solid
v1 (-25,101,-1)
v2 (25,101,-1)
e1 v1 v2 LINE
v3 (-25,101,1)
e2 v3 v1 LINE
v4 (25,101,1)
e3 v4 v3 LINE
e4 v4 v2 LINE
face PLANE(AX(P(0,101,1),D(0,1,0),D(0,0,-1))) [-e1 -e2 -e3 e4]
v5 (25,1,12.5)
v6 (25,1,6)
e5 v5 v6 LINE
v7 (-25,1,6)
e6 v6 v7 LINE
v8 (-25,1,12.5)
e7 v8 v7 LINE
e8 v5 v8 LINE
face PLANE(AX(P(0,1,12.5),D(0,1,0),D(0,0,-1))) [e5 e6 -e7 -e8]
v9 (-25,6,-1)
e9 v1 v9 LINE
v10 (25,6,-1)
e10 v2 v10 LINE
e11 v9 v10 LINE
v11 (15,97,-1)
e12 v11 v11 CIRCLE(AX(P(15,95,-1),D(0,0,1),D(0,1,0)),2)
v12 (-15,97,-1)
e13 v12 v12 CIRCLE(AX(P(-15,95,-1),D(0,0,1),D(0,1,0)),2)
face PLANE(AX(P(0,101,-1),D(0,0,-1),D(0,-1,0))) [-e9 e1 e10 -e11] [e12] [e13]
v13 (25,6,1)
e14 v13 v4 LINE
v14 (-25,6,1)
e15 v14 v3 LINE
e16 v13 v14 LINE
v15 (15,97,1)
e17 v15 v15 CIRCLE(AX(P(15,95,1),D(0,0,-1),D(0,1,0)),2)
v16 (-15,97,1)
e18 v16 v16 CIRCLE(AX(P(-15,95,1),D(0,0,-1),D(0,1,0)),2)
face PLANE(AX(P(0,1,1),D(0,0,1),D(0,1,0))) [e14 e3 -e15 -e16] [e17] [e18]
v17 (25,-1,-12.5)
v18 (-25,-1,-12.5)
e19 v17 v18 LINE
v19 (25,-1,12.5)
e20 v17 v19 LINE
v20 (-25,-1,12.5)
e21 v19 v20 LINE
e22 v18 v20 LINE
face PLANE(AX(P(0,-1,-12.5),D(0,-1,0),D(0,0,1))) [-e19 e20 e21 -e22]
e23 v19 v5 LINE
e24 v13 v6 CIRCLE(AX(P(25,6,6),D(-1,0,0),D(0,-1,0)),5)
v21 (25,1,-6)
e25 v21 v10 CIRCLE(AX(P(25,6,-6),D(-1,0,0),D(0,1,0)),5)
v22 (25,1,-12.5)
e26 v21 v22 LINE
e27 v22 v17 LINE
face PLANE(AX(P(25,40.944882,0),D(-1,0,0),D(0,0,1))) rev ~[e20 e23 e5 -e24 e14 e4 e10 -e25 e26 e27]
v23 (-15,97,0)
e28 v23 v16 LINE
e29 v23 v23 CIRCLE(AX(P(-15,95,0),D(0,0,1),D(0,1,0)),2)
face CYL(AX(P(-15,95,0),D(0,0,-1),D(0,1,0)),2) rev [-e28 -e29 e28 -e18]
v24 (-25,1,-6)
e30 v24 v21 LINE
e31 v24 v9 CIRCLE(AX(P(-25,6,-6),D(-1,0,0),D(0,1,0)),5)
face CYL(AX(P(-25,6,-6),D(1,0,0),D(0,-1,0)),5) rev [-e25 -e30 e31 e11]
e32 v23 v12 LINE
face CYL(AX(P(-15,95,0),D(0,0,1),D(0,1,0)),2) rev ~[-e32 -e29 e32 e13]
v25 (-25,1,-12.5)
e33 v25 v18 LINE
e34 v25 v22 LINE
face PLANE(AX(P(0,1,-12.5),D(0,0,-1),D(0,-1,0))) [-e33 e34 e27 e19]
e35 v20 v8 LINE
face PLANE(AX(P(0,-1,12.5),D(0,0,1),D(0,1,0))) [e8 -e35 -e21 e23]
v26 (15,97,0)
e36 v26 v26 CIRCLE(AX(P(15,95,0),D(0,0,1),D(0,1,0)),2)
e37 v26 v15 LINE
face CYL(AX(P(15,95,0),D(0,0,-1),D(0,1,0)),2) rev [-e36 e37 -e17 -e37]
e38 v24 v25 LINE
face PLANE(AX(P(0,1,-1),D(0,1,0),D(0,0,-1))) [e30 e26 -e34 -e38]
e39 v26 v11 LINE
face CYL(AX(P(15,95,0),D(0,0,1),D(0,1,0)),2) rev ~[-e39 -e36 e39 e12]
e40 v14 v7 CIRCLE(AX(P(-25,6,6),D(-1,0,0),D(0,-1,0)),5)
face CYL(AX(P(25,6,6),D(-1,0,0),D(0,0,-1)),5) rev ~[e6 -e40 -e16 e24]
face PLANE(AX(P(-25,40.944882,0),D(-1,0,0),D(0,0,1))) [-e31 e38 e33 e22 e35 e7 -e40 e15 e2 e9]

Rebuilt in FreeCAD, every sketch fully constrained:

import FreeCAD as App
import Part
import Sketcher
from FreeCAD import Vector
Q = App.Units.Quantity


def edges_at(feature, points):
    """Names of the edges that pass closest to the given points."""
    edges = feature.Shape.Edges
    near = lambda p: min(range(len(edges)), key=lambda i: edges[i].distToShape(Part.Vertex(*p))[0])
    return sorted({f"Edge{near(p) + 1}" for p in points})

doc = App.newDocument("Part")
params = doc.addObject("Spreadsheet::Sheet", "Params")
for row, (alias, value) in enumerate([
    ("sketch1_width", "25 mm"),
    ("sketch1_width2", "2 mm"),
    ("sketch1_height", "100 mm"),
    ("pad1_length", "50 mm"),
    ("fillet_radius", "5 mm"),
    ("sketch2_diameter", "4 mm"),
], start=1):
    params.set(f"A{row}", alias)
    params.set(f"B{row}", "=" + value)
    params.setAlias(f"B{row}", alias)

body = doc.addObject("PartDesign::Body", "Body")

# Sketch on XY plane
sketch1 = body.newObject("Sketcher::SketchObject", "Sketch")
sketch1.AttachmentSupport = (doc.getObject("XY_Plane"), [""])
sketch1.MapMode = "FlatFace"
sketch1.addGeometry(Part.LineSegment(Vector(-12.5, 1, 0), Vector(-12.5, -1, 0)), False)
sketch1.addGeometry(Part.LineSegment(Vector(-12.5, -1, 0), Vector(12.5, -1, 0)), False)
sketch1.addGeometry(Part.LineSegment(Vector(12.5, -1, 0), Vector(12.5, 1, 0)), False)
sketch1.addGeometry(Part.LineSegment(Vector(12.5, 1, 0), Vector(1, 1, 0)), False)
sketch1.addGeometry(Part.LineSegment(Vector(1, 1, 0), Vector(1, 101, 0)), False)
sketch1.addGeometry(Part.LineSegment(Vector(1, 101, 0), Vector(-1, 101, 0)), False)
sketch1.addGeometry(Part.LineSegment(Vector(-1, 101, 0), Vector(-1, 1, 0)), False)
sketch1.addGeometry(Part.LineSegment(Vector(-1, 1, 0), Vector(-12.5, 1, 0)), False)
sketch1.addConstraint(Sketcher.Constraint("Coincident", 0, 2, 1, 1))
sketch1.addConstraint(Sketcher.Constraint("Coincident", 1, 2, 2, 1))
sketch1.addConstraint(Sketcher.Constraint("Coincident", 2, 2, 3, 1))
sketch1.addConstraint(Sketcher.Constraint("Coincident", 3, 2, 4, 1))
sketch1.addConstraint(Sketcher.Constraint("Coincident", 4, 2, 5, 1))
sketch1.addConstraint(Sketcher.Constraint("Coincident", 5, 2, 6, 1))
sketch1.addConstraint(Sketcher.Constraint("Coincident", 6, 2, 7, 1))
sketch1.addConstraint(Sketcher.Constraint("Coincident", 7, 2, 0, 1))
sketch1.addConstraint(Sketcher.Constraint("Vertical", 0))
sketch1.addConstraint(Sketcher.Constraint("Horizontal", 1))
sketch1.addConstraint(Sketcher.Constraint("Vertical", 2))
sketch1.addConstraint(Sketcher.Constraint("Horizontal", 3))
sketch1.addConstraint(Sketcher.Constraint("Vertical", 4))
sketch1.addConstraint(Sketcher.Constraint("Horizontal", 5))
sketch1.addConstraint(Sketcher.Constraint("Vertical", 6))
sketch1.addConstraint(Sketcher.Constraint("Horizontal", 7))
sketch1.addConstraint(Sketcher.Constraint("Symmetric", 0, 2, 2, 2, -1, 1))
sketch1.addConstraint(Sketcher.Constraint("Symmetric", 3, 2, 6, 2, -2))
sketch1.addConstraint(Sketcher.Constraint("Equal", 5, 0))
sketch1.addConstraint(Sketcher.Constraint("DistanceX", 1, 1, 1, 2, Q("25 mm")))
sketch1.addConstraint(Sketcher.Constraint("DistanceX", 5, 2, 5, 1, Q("2 mm")))
sketch1.addConstraint(Sketcher.Constraint("DistanceY", 4, 1, 4, 2, Q("100 mm")))
sketch1.setExpression("Constraints[19]", "Params.sketch1_width")
sketch1.setExpression("Constraints[20]", "Params.sketch1_width2")
sketch1.setExpression("Constraints[21]", "Params.sketch1_height")
pad1 = body.newObject("PartDesign::Pad", "Pad")
pad1.Profile = sketch1
pad1.setExpression("Length", "Params.pad1_length")
pad1.Midplane = True
doc.recompute()

fillet = body.newObject("PartDesign::Fillet", "Fillet")
fillet.Base = (pad1, edges_at(pad1, [(-1, 1, 0), (1, 1, 0)]))
fillet.setExpression("Radius", "Params.fillet_radius")

# Sketch on YZ plane
sketch2 = body.newObject("Sketcher::SketchObject", "Sketch001")
sketch2.AttachmentSupport = (doc.getObject("YZ_Plane"), [""])
sketch2.MapMode = "FlatFace"
sketch2.addGeometry(Part.Circle(Vector(95, 15, 0), Vector(0, 0, 1), 2), False)
sketch2.addGeometry(Part.Circle(Vector(95, -15, 0), Vector(0, 0, 1), 2), False)
sketch2.addConstraint(Sketcher.Constraint("Equal", 0, 1))
sketch2.addConstraint(Sketcher.Constraint("Symmetric", 0, 3, 1, 3, -1))
sketch2.addConstraint(Sketcher.Constraint("Diameter", 0, Q("4 mm")))
sketch2.addConstraint(Sketcher.Constraint("DistanceX", -1, 1, 0, 3, Q("95 mm")))
sketch2.addConstraint(Sketcher.Constraint("DistanceY", -1, 1, 0, 3, Q("15 mm")))
sketch2.setExpression("Constraints[2]", "Params.sketch2_diameter")
pocket1 = body.newObject("PartDesign::Pocket", "Pocket")
pocket1.Profile = sketch2
pocket1.Type = "ThroughAll"
pocket1.Midplane = True
body2 = doc.addObject("PartDesign::Body", "Body001")
doc.recompute()

body.Placement = App.Placement(Vector(0, 0, 0), App.Rotation(Vector(0, 1, 0), 270))
boolean = body2.newObject("PartDesign::Boolean", "Boolean")
boolean.Type = "Fuse"
boolean.addObjects([body])

doc.recompute()
